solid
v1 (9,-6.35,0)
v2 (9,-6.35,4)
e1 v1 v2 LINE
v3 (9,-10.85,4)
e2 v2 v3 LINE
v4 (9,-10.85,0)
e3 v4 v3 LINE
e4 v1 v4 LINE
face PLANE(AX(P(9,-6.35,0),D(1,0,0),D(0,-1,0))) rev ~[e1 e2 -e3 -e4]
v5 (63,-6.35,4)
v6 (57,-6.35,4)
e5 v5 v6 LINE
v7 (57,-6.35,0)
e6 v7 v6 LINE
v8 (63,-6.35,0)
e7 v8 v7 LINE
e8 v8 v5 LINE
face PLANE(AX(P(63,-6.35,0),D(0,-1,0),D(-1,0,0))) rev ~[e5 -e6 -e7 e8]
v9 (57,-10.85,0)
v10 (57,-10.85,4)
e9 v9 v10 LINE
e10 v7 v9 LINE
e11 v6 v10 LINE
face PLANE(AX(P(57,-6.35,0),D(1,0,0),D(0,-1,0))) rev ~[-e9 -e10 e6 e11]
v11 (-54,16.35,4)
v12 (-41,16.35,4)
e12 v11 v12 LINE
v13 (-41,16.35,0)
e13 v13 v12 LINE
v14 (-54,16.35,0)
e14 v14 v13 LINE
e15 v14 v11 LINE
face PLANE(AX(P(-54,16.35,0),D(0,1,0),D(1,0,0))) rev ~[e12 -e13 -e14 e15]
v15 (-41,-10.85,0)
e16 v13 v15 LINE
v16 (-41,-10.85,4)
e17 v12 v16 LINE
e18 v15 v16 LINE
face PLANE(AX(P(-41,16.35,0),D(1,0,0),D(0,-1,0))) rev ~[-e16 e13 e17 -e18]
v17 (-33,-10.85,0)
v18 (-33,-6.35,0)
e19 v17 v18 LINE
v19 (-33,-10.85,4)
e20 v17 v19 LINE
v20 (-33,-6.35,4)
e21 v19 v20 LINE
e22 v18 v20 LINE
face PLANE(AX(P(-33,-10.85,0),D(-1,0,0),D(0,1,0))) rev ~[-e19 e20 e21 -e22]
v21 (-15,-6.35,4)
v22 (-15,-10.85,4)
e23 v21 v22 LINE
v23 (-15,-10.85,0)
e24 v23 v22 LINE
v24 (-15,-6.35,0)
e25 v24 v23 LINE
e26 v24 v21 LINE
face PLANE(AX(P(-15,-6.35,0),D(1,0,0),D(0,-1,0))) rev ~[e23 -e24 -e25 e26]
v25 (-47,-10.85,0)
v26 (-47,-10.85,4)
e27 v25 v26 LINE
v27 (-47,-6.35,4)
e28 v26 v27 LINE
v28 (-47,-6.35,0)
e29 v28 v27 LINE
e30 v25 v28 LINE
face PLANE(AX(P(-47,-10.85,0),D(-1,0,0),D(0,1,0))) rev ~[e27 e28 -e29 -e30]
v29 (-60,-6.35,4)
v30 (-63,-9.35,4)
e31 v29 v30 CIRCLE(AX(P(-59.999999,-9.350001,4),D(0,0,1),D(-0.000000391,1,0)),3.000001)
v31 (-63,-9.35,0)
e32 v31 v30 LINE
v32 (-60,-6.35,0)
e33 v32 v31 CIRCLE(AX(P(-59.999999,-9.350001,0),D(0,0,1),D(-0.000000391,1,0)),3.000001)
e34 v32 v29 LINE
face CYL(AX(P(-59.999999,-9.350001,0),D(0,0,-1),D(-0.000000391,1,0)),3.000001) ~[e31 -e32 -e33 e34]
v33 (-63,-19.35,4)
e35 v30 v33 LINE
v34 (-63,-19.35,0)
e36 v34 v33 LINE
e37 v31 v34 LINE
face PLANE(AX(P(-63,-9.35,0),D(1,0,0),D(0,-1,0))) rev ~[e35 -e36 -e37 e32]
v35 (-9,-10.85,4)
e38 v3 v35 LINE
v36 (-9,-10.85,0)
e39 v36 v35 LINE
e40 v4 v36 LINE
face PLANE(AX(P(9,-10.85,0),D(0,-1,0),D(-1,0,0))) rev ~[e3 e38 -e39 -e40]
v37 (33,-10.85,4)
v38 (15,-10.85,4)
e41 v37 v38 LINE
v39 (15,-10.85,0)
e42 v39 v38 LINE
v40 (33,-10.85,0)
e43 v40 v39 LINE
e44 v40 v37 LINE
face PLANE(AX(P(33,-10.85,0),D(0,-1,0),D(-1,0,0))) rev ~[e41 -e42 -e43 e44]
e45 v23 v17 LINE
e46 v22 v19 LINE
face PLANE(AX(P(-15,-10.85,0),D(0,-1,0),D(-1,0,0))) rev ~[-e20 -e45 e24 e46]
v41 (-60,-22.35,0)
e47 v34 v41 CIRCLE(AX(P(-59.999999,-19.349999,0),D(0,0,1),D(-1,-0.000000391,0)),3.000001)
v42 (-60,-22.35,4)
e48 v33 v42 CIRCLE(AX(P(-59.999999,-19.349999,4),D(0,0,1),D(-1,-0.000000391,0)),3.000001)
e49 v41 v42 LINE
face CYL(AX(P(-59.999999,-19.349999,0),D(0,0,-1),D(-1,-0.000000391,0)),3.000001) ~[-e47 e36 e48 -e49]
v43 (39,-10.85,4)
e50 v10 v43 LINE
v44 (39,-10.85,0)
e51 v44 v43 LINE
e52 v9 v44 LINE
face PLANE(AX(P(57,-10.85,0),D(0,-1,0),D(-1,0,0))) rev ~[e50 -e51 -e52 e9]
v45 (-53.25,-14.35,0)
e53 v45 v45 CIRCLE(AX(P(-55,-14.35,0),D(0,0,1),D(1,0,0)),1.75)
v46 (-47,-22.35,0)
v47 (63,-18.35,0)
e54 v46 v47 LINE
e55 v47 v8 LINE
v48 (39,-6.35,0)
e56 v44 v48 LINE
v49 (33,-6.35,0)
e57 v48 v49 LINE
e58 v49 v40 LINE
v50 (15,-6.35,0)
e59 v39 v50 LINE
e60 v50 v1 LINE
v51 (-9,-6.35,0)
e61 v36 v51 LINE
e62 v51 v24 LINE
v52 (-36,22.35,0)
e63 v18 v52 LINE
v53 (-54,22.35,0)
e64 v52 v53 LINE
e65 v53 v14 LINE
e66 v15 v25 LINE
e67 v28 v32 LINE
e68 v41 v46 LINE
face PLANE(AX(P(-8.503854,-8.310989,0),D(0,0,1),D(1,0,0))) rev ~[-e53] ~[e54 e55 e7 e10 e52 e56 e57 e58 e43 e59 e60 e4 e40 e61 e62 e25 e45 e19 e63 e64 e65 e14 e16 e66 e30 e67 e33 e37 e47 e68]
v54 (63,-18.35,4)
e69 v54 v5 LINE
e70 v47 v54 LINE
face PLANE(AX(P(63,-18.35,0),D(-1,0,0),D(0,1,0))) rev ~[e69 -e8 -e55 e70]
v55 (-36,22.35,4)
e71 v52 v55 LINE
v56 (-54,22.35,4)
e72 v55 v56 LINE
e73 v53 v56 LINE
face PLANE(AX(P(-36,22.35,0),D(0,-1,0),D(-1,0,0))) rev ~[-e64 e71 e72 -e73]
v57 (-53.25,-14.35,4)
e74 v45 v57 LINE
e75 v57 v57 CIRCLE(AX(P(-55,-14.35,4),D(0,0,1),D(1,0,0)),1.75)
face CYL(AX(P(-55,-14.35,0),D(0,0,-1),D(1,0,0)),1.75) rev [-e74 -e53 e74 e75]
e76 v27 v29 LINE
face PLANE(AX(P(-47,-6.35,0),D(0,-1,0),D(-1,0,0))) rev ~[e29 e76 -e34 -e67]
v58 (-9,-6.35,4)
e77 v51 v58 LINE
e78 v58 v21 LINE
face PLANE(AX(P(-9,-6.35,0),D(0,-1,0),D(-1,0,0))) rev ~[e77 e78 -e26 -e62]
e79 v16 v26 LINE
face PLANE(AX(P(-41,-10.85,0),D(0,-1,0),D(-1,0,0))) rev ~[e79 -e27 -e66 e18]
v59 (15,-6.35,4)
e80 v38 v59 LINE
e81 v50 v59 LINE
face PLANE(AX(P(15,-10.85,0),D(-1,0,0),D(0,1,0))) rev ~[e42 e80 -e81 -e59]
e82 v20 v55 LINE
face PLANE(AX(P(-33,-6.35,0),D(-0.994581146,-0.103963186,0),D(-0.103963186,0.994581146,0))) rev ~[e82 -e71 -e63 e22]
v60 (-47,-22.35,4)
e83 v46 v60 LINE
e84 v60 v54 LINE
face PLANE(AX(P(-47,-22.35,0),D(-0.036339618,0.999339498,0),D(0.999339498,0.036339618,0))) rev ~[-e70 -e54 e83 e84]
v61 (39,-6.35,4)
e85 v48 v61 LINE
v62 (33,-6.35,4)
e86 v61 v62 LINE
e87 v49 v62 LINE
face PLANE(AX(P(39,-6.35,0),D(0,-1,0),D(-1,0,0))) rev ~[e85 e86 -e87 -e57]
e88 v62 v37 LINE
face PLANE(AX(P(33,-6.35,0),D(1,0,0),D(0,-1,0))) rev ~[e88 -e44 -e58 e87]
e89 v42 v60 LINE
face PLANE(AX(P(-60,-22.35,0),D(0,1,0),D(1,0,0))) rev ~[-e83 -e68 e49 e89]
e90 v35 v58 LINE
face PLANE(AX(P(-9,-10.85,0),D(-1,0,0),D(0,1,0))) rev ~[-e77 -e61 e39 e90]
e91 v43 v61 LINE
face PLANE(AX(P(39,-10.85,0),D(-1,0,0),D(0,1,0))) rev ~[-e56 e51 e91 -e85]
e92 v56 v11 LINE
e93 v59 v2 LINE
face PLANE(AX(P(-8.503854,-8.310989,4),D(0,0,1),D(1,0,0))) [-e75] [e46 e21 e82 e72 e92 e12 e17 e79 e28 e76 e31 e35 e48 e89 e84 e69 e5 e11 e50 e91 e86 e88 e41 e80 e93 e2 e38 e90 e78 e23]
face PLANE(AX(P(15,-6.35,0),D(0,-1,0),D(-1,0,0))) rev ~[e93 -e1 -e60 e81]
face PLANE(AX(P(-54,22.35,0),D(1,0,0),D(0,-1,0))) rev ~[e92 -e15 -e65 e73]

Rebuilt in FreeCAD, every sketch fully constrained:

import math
import FreeCAD as App
import Part
import Sketcher

V = App.Vector

doc = App.newDocument("Part")
params = doc.addObject("Spreadsheet::Sheet", "Params")
for row, (alias, value) in enumerate([
    ("sketch1_radius", "3.000001 mm"),
    ("sketch1_diameter", "3.5 mm"),
    ("sketch1_width", "18 mm"),
    ("sketch1_width2", "13 mm"),
    ("sketch1_width3", "6 mm"),
    ("pad1_length", "4 mm"),
], start=1):
    params.set(f"A{row}", alias)
    params.set(f"B{row}", "=" + value)
    params.setAlias(f"B{row}", alias)

body = doc.addObject("PartDesign::Body", "Body")

# Sketch on XY plane
sketch1 = doc.addObject("Sketcher::SketchObject", "Sketch")
body.addObject(sketch1)
sketch1.AttachmentSupport = (doc.XY_Plane, [""])
sketch1.MapMode = "FlatFace"
sketch1.addGeometry([
    Part.LineSegment(V(-33, -6.35, 0), V(-36, 22.35, 0)),  # 0
    Part.LineSegment(V(-36, 22.35, 0), V(-54, 22.35, 0)),  # 1
    Part.LineSegment(V(-54, 22.35, 0), V(-54, 16.35, 0)),  # 2
    Part.LineSegment(V(-54, 16.35, 0), V(-41, 16.35, 0)),  # 3
    Part.LineSegment(V(-41, 16.35, 0), V(-41, -10.85, 0)),  # 4
    Part.LineSegment(V(-41, -10.85, 0), V(-47, -10.85, 0)),  # 5
    Part.LineSegment(V(-47, -10.85, 0), V(-47, -6.35, 0)),  # 6
    Part.LineSegment(V(-47, -6.35, 0), V(-60, -6.35, 0)),  # 7
    Part.ArcOfCircle(Part.Circle(V(-59.999999, -9.350001, 0), V(0, 0, 1), 3.000001), math.radians(90.000022), math.radians(179.999978)),  # 8
    Part.LineSegment(V(-63, -9.35, 0), V(-63, -19.35, 0)),  # 9
    Part.ArcOfCircle(Part.Circle(V(-59.999999, -19.349999, 0), V(0, 0, 1), 3.000001), math.radians(-179.999978), math.radians(-90.000022)),  # 10
    Part.LineSegment(V(-60, -22.35, 0), V(-47, -22.35, 0)),  # 11
    Part.LineSegment(V(-47, -22.35, 0), V(63, -18.35, 0)),  # 12
    Part.LineSegment(V(63, -18.35, 0), V(63, -6.35, 0)),  # 13
    Part.LineSegment(V(63, -6.35, 0), V(57, -6.35, 0)),  # 14
    Part.LineSegment(V(57, -6.35, 0), V(57, -10.85, 0)),  # 15
    Part.LineSegment(V(57, -10.85, 0), V(39, -10.85, 0)),  # 16
    Part.LineSegment(V(39, -10.85, 0), V(39, -6.35, 0)),  # 17
    Part.LineSegment(V(39, -6.35, 0), V(33, -6.35, 0)),  # 18
    Part.LineSegment(V(33, -6.35, 0), V(33, -10.85, 0)),  # 19
    Part.LineSegment(V(33, -10.85, 0), V(15, -10.85, 0)),  # 20
    Part.LineSegment(V(15, -10.85, 0), V(15, -6.35, 0)),  # 21
    Part.LineSegment(V(15, -6.35, 0), V(9, -6.35, 0)),  # 22
    Part.LineSegment(V(9, -6.35, 0), V(9, -10.85, 0)),  # 23
    Part.LineSegment(V(9, -10.85, 0), V(-9, -10.85, 0)),  # 24
    Part.LineSegment(V(-9, -10.85, 0), V(-9, -6.35, 0)),  # 25
    Part.LineSegment(V(-9, -6.35, 0), V(-15, -6.35, 0)),  # 26
    Part.LineSegment(V(-15, -6.35, 0), V(-15, -10.85, 0)),  # 27
    Part.LineSegment(V(-15, -10.85, 0), V(-33, -10.85, 0)),  # 28
    Part.LineSegment(V(-33, -10.85, 0), V(-33, -6.35, 0)),  # 29
    Part.Circle(V(-55, -14.35, 0), V(0, 0, 1), 1.75),  # 30
], False)
sketch1.addConstraint([
    Sketcher.Constraint("Coincident", 0, 2, 1, 1),
    Sketcher.Constraint("Coincident", 1, 2, 2, 1),
    Sketcher.Constraint("Coincident", 2, 2, 3, 1),
    Sketcher.Constraint("Coincident", 3, 2, 4, 1),
    Sketcher.Constraint("Coincident", 4, 2, 5, 1),
    Sketcher.Constraint("Coincident", 5, 2, 6, 1),
    Sketcher.Constraint("Coincident", 6, 2, 7, 1),
    Sketcher.Constraint("Tangent", 7, 2, 8, 1),
    Sketcher.Constraint("Tangent", 8, 2, 9, 1),
    Sketcher.Constraint("Tangent", 9, 2, 10, 1),
    Sketcher.Constraint("Tangent", 10, 2, 11, 1),
    Sketcher.Constraint("Coincident", 11, 2, 12, 1),
    Sketcher.Constraint("Coincident", 12, 2, 13, 1),
    Sketcher.Constraint("Coincident", 13, 2, 14, 1),
    Sketcher.Constraint("Coincident", 14, 2, 15, 1),
    Sketcher.Constraint("Coincident", 15, 2, 16, 1),
    Sketcher.Constraint("Coincident", 16, 2, 17, 1),
    Sketcher.Constraint("Coincident", 17, 2, 18, 1),
    Sketcher.Constraint("Coincident", 18, 2, 19, 1),
    Sketcher.Constraint("Coincident", 19, 2, 20, 1),
    Sketcher.Constraint("Coincident", 20, 2, 21, 1),
    Sketcher.Constraint("Coincident", 21, 2, 22, 1),
    Sketcher.Constraint("Coincident", 22, 2, 23, 1),
    Sketcher.Constraint("Coincident", 23, 2, 24, 1),
    Sketcher.Constraint("Coincident", 24, 2, 25, 1),
    Sketcher.Constraint("Coincident", 25, 2, 26, 1),
    Sketcher.Constraint("Coincident", 26, 2, 27, 1),
    Sketcher.Constraint("Coincident", 27, 2, 28, 1),
    Sketcher.Constraint("Coincident", 28, 2, 29, 1),
    Sketcher.Constraint("Coincident", 29, 2, 0, 1),
    Sketcher.Constraint("Horizontal", 1),
    Sketcher.Constraint("Vertical", 2),
    Sketcher.Constraint("Horizontal", 3),
    Sketcher.Constraint("Vertical", 4),
    Sketcher.Constraint("Horizontal", 5),
    Sketcher.Constraint("Vertical", 6),
    Sketcher.Constraint("Horizontal", 7),
    Sketcher.Constraint("Vertical", 9),
    Sketcher.Constraint("Horizontal", 11),
    Sketcher.Constraint("Vertical", 13),
    Sketcher.Constraint("Horizontal", 14),
    Sketcher.Constraint("Vertical", 15),
    Sketcher.Constraint("Horizontal", 16),
    Sketcher.Constraint("Vertical", 17),
    Sketcher.Constraint("Horizontal", 18),
    Sketcher.Constraint("Vertical", 19),
    Sketcher.Constraint("Horizontal", 20),
    Sketcher.Constraint("Vertical", 21),
    Sketcher.Constraint("Horizontal", 22),
    Sketcher.Constraint("Vertical", 23),
    Sketcher.Constraint("Horizontal", 24),
    Sketcher.Constraint("Vertical", 25),
    Sketcher.Constraint("Horizontal", 26),
    Sketcher.Constraint("Vertical", 27),
    Sketcher.Constraint("Horizontal", 28),
    Sketcher.Constraint("Vertical", 29),
    Sketcher.Constraint("Equal", 8, 10),
    Sketcher.Constraint("Symmetric", 22, 2, 25, 2, -2),
    Sketcher.Constraint("Symmetric", 20, 2, 27, 2, -2),
    Sketcher.Constraint("Symmetric", 18, 2, 29, 2, -2),
    Sketcher.Constraint("Horizontal", 7, 2, 13, 2),
    Sketcher.Constraint("Horizontal", 5, 2, 15, 2),
    Sketcher.Constraint("Horizontal", 14, 2, 17, 2),
    Sketcher.Constraint("Horizontal", 16, 2, 19, 2),
    Sketcher.Constraint("Horizontal", 18, 2, 21, 2),
    Sketcher.Constraint("Horizontal", 20, 2, 23, 2),
    Sketcher.Constraint("Vertical", 6, 2, 11, 2),
    Sketcher.Constraint("Equal", 3, 7),
    Sketcher.Constraint("Equal", 5, 14),
    Sketcher.Constraint("Equal", 1, 16),
    Sketcher.Constraint("Equal", 14, 18),
    Sketcher.Constraint("Equal", 16, 20),
    Sketcher.Constraint("Equal", 18, 22),
    Sketcher.Constraint("Equal", 20, 24),
    Sketcher.Constraint("Equal", 26, 2),
    Sketcher.Constraint("Radius", 8, 3.000001),
    Sketcher.Constraint("Diameter", 30, 3.5),
    Sketcher.Constraint("DistanceX", 1, 2, 1, 1, 18.0),
    Sketcher.Constraint("DistanceX", 3, 1, 3, 2, 13.0),
    Sketcher.Constraint("DistanceX", 5, 2, 5, 1, 6.0),
    Sketcher.Constraint("DistanceY", 9, 2, 9, 1, 10.0),
    Sketcher.Constraint("DistanceY", 13, 1, 13, 2, 12.0),
    Sketcher.Constraint("DistanceY", 4, 2, 4, 1, 27.2),
    Sketcher.Constraint("DistanceY", 6, 1, 6, 2, 4.5),
    Sketcher.Constraint("DistanceX", 8, 3, -1, 1, 59.999999),
    Sketcher.Constraint("DistanceX", 30, 3, -1, 1, 55.0),
    Sketcher.Constraint("DistanceY", 30, 3, 8, 3, 4.999999),
    Sketcher.Constraint("DistanceY", 8, 3, -1, 1, 9.350001),
])
sketch1.setExpression("Constraints[75]", "Params.sketch1_radius")
sketch1.setExpression("Constraints[76]", "Params.sketch1_diameter")
sketch1.setExpression("Constraints[77]", "Params.sketch1_width")
sketch1.setExpression("Constraints[78]", "Params.sketch1_width2")
sketch1.setExpression("Constraints[79]", "Params.sketch1_width3")
pad1 = doc.addObject("PartDesign::Pad", "Pad")
body.addObject(pad1)
pad1.Profile = sketch1
pad1.setExpression("Length", "Params.pad1_length")

doc.recompute()
